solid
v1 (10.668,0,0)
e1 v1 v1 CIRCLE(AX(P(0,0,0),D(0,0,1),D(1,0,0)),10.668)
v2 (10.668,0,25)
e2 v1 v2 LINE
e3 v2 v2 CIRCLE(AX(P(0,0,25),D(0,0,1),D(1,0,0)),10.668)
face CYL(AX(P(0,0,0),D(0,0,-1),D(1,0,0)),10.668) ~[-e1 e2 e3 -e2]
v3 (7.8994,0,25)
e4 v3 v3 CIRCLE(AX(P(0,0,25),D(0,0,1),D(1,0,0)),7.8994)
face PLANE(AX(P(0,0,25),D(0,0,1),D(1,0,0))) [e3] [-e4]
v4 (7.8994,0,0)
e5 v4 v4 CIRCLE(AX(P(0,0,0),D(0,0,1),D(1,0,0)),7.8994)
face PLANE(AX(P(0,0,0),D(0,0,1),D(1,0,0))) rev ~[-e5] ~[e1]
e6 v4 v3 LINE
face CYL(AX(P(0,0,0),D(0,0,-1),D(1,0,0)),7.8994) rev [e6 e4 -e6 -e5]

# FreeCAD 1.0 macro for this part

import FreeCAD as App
import Part
import Sketcher

V = App.Vector
Q = App.Units.Quantity

doc = App.newDocument("Part")
params = doc.addObject("Spreadsheet::Sheet", "Params")
for row, (alias, value) in enumerate([
    ("sketch1_diameter", "0.84 in"),
    ("sketch1_diameter2", "0.622 in"),
    ("pad1_length", "25 mm"),
], start=1):
    params.set(f"A{row}", alias)
    params.set(f"B{row}", "=" + value)
    params.setAlias(f"B{row}", alias)

body = doc.addObject("PartDesign::Body", "Body")

# Sketch on XY plane
sketch1 = body.newObject("Sketcher::SketchObject", "Sketch")
sketch1.AttachmentSupport = (doc.getObject("XY_Plane"), [""])
sketch1.MapMode = "FlatFace"
sketch1.addGeometry(Part.Circle(V(0, 0, 0), V(0, 0, 1), 10.668), False)
sketch1.addGeometry(Part.Circle(V(0, 0, 0), V(0, 0, 1), 7.8994), False)
sketch1.addConstraint(Sketcher.Constraint("Coincident", 0, 3, -1, 1))
sketch1.addConstraint(Sketcher.Constraint("Coincident", 1, 3, -1, 1))
sketch1.addConstraint(Sketcher.Constraint("Diameter", 0, Q("0.84 in")))
sketch1.addConstraint(Sketcher.Constraint("Diameter", 1, Q("0.622 in")))
sketch1.setExpression("Constraints[2]", "Params.sketch1_diameter")
sketch1.setExpression("Constraints[3]", "Params.sketch1_diameter2")
pad1 = body.newObject("PartDesign::Pad", "Pad")
pad1.Profile = sketch1
pad1.setExpression("Length", "Params.pad1_length")

doc.recompute()
